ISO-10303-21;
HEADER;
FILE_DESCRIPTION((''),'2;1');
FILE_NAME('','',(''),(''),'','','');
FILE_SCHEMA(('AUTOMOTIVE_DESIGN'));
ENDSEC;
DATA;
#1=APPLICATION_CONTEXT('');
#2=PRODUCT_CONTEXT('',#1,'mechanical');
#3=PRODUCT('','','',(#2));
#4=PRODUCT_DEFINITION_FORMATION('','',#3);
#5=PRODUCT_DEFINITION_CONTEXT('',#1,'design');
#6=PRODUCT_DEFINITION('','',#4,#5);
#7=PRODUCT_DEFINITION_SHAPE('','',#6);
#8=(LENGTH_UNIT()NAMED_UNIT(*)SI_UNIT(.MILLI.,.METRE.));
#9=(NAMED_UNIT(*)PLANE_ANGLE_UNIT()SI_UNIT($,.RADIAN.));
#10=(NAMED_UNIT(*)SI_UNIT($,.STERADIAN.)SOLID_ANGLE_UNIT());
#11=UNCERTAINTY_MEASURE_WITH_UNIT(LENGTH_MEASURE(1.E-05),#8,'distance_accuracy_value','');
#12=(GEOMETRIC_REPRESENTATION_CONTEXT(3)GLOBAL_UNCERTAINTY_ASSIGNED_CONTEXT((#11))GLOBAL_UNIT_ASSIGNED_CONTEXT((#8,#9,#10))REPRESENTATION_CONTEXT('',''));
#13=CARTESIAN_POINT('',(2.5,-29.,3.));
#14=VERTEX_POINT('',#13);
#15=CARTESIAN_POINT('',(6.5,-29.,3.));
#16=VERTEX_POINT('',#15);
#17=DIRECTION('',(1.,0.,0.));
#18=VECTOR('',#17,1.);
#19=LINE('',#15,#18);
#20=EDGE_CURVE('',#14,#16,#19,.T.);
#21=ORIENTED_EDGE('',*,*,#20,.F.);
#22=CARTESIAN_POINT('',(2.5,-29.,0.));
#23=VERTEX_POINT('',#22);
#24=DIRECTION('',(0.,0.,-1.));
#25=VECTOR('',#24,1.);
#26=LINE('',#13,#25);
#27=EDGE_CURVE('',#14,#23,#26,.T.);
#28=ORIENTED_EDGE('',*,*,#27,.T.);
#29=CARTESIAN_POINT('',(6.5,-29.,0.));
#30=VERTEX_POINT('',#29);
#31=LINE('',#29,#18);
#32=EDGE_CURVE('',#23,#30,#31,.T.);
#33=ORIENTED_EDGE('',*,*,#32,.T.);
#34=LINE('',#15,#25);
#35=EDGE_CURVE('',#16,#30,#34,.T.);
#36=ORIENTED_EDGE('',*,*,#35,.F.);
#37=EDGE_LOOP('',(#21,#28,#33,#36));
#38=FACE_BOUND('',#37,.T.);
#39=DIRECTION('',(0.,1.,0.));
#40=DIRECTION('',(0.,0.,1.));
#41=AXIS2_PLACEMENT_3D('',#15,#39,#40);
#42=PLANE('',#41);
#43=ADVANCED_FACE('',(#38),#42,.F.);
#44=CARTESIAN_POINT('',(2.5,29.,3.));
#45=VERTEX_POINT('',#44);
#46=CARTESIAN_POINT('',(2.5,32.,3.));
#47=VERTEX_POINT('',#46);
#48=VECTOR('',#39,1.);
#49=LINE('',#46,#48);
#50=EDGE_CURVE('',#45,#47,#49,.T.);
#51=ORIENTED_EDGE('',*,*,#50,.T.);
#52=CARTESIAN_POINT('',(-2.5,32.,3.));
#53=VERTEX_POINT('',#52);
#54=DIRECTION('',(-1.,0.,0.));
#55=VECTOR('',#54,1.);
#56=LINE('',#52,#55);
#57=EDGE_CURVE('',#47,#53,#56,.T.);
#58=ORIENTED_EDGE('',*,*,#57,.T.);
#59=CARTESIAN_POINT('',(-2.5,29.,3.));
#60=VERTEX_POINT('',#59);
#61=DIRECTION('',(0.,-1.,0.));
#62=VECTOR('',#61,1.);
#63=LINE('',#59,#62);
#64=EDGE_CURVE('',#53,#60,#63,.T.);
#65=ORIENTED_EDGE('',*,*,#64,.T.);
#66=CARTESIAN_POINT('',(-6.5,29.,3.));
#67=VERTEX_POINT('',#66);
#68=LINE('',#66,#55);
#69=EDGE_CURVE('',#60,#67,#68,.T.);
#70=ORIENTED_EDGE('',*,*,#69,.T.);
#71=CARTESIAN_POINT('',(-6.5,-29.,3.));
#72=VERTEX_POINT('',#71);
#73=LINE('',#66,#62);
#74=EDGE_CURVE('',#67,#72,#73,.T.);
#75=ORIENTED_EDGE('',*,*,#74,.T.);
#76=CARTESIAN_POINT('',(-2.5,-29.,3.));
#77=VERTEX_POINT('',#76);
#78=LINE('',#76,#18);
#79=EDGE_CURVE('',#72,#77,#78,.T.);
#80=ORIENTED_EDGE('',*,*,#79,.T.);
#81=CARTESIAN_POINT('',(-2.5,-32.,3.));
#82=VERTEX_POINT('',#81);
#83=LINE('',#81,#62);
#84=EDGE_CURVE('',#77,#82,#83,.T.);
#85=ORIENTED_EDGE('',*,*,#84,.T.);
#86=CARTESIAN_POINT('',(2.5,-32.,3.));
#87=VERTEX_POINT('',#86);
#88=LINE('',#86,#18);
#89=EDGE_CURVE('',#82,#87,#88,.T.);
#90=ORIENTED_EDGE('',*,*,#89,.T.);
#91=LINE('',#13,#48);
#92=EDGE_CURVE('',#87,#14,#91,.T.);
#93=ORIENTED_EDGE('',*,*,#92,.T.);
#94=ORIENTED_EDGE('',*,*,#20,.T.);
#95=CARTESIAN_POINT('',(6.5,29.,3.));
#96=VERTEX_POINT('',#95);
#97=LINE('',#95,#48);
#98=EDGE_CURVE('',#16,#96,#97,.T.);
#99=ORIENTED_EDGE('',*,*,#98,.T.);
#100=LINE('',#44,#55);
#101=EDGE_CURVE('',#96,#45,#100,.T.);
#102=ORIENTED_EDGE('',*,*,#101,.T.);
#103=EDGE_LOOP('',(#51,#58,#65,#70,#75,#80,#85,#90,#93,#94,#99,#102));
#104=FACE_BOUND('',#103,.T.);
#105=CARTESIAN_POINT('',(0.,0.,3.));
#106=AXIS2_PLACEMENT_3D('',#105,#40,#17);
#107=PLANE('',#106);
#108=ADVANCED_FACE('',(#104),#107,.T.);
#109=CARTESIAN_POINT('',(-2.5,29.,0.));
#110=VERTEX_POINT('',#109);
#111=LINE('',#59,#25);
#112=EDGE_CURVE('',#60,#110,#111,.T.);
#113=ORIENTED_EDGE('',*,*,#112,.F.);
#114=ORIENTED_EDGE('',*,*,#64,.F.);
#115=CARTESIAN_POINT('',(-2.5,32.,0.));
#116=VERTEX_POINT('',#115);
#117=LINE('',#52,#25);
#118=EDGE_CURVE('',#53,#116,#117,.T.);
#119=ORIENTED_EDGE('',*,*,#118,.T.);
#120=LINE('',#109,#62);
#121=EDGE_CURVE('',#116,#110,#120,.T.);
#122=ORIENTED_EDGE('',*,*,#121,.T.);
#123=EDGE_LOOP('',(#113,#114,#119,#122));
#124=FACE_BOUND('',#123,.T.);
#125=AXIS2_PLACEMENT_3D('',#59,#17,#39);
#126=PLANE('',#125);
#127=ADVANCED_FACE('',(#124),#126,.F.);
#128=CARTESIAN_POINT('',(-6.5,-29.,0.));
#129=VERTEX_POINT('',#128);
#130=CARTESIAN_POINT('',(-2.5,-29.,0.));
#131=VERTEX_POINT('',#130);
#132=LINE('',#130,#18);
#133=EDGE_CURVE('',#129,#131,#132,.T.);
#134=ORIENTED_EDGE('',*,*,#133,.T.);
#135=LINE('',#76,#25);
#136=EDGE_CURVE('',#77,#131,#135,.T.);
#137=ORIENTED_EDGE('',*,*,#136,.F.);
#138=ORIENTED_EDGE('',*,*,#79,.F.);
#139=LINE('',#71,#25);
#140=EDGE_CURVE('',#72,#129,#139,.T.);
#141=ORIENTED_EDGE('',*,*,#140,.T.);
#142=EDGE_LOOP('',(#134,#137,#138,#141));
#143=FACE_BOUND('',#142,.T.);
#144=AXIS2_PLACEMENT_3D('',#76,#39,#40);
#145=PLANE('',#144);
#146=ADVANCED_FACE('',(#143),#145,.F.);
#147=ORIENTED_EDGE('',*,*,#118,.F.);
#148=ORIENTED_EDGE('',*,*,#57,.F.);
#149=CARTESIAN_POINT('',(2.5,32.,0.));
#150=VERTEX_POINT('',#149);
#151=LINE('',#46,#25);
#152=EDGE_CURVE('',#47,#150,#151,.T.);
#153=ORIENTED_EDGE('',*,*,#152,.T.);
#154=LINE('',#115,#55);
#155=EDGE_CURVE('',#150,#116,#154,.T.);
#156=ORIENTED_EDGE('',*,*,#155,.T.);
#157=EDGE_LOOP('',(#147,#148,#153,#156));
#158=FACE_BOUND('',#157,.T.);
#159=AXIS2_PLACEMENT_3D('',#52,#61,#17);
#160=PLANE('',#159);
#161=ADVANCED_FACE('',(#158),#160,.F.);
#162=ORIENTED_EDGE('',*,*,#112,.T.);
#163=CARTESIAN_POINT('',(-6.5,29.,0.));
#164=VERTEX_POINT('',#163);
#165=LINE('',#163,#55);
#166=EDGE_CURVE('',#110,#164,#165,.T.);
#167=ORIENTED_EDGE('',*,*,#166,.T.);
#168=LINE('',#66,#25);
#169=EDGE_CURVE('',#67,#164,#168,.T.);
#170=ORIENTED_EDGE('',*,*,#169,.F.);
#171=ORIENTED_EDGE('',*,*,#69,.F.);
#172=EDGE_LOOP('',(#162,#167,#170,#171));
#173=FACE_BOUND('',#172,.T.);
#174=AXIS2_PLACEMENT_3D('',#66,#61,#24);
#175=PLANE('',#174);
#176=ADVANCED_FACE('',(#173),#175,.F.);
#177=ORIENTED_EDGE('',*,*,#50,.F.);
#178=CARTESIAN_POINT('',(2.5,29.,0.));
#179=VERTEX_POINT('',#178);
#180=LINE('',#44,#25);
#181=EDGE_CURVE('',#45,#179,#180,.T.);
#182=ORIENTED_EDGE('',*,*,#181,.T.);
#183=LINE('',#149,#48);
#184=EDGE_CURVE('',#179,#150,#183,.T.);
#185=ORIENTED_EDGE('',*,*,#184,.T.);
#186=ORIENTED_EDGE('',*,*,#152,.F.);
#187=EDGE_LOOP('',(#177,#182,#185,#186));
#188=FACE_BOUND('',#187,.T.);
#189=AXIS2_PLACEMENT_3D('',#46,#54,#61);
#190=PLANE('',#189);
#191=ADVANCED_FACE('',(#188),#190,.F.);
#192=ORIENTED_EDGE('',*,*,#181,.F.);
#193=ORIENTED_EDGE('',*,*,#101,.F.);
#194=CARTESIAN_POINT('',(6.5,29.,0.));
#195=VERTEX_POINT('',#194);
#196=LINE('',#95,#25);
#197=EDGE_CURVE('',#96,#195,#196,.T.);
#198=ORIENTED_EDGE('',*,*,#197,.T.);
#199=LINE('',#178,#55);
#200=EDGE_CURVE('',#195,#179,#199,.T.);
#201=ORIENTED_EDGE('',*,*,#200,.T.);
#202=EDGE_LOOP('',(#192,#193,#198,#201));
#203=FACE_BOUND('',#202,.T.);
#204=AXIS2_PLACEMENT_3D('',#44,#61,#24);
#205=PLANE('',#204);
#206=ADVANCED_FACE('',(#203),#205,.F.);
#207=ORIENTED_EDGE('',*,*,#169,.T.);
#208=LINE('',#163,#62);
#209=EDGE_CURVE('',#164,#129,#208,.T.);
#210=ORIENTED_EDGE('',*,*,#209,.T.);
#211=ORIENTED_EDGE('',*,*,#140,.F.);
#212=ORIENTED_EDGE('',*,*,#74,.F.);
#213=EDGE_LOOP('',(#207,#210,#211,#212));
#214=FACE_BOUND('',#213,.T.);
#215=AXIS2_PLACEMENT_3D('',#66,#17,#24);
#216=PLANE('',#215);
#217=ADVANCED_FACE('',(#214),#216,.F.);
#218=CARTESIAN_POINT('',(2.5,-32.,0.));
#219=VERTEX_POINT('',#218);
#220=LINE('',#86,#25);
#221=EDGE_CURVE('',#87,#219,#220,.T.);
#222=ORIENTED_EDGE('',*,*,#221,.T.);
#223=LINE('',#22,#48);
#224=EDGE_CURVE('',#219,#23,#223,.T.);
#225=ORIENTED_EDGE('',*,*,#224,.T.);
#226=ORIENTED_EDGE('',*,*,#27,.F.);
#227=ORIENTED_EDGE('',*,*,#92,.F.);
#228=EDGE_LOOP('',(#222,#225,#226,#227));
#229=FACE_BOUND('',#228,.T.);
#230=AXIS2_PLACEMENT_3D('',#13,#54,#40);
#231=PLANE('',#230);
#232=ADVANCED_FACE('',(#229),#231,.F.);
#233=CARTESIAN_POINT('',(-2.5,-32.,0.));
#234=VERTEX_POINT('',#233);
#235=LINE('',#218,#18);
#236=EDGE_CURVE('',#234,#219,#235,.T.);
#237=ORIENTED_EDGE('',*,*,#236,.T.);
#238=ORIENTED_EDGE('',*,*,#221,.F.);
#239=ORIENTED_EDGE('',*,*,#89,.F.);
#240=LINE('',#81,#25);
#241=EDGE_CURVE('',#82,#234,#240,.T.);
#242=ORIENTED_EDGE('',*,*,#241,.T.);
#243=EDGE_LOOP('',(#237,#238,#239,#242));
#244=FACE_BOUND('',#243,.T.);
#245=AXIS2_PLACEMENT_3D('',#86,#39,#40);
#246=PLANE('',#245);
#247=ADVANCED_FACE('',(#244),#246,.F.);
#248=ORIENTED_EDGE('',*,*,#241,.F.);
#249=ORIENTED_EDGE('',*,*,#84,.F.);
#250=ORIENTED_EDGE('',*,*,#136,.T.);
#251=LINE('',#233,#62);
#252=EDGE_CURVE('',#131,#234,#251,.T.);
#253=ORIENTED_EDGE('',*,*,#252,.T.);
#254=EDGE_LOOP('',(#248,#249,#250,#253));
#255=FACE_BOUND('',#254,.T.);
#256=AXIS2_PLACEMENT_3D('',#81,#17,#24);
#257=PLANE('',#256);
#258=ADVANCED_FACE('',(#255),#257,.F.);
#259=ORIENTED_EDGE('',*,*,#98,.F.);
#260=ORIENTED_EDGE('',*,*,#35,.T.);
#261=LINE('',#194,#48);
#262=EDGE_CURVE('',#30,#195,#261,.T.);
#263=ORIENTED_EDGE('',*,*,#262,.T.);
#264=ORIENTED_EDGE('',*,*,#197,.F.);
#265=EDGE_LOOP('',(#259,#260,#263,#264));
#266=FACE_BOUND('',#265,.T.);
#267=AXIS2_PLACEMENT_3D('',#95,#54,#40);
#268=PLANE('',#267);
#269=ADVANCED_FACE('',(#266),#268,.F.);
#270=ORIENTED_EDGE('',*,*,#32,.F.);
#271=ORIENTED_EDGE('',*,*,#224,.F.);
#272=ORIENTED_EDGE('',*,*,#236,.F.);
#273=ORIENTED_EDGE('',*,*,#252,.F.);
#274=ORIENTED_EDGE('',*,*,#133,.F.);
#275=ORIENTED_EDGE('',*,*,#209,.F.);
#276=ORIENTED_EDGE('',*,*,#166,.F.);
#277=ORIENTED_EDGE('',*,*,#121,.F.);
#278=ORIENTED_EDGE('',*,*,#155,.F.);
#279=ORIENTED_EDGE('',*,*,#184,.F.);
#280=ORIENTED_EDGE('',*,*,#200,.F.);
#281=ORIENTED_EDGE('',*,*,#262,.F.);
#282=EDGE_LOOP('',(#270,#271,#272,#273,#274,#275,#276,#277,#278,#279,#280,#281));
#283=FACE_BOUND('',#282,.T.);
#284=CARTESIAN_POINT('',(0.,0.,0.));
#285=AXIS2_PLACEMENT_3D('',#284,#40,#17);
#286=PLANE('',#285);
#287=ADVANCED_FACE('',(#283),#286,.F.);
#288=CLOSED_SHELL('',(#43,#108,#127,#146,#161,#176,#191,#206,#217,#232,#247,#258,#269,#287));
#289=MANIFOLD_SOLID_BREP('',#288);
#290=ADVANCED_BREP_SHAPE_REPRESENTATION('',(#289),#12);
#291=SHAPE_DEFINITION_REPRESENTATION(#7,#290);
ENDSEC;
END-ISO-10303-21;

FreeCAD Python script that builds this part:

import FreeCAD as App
import Part
import Sketcher


def add_polygon(sketch, points):
    """Adds a closed chain of lines whose ends are joined by coincident constraints."""
    first, n = sketch.GeometryCount, len(points)
    for a, b in zip(points, points[1:] + points[:1]):
        sketch.addGeometry(Part.LineSegment(App.Vector(*a, 0), App.Vector(*b, 0)), False)
    for i in range(n):
        sketch.addConstraint(Sketcher.Constraint("Coincident", first + i, 2, first + (i + 1) % n, 1))

doc = App.newDocument("Part")
body = doc.addObject("PartDesign::Body", "Body")

# Sketch on XY plane
sketch1 = body.newObject("Sketcher::SketchObject", "Sketch")
sketch1.AttachmentSupport = (doc.getObject("XY_Plane"), [""])
sketch1.MapMode = "FlatFace"
add_polygon(sketch1, [(-2.5, 29), (-6.5, 29), (-6.5, -29), (-2.5, -29), (-2.5, -32), (2.5, -32), (2.5, -29), (6.5, -29), (6.5, 29), (2.5, 29), (2.5, 32), (-2.5, 32)])  # lines 0-11
sketch1.addConstraint([
    Sketcher.Constraint("Horizontal", 0),
    Sketcher.Constraint("Vertical", 1),
    Sketcher.Constraint("Horizontal", 2),
    Sketcher.Constraint("Vertical", 3),
    Sketcher.Constraint("Horizontal", 4),
    Sketcher.Constraint("Vertical", 5),
    Sketcher.Constraint("Horizontal", 6),
    Sketcher.Constraint("Vertical", 7),
    Sketcher.Constraint("Horizontal", 8),
    Sketcher.Constraint("Vertical", 9),
    Sketcher.Constraint("Horizontal", 10),
    Sketcher.Constraint("Vertical", 11),
    Sketcher.Constraint("Symmetric", 0, 2, 6, 2, -1, 1),
    Sketcher.Constraint("Symmetric", 2, 2, 8, 2, -1, 1),
    Sketcher.Constraint("Symmetric", 4, 2, 10, 2, -1, 1),
    Sketcher.Constraint("Symmetric", 2, 2, 5, 2, -2),
    Sketcher.Constraint("DistanceX", 0, 2, 0, 1, 4.0),
    Sketcher.Constraint("DistanceX", 4, 1, 4, 2, 5.0),
    Sketcher.Constraint("DistanceY", 1, 2, 1, 1, 58.0),
    Sketcher.Constraint("DistanceY", 3, 2, 3, 1, 3.0),
])
pad1 = body.newObject("PartDesign::Pad", "Pad")
pad1.Profile = sketch1
pad1.Length = 3

doc.recompute()
